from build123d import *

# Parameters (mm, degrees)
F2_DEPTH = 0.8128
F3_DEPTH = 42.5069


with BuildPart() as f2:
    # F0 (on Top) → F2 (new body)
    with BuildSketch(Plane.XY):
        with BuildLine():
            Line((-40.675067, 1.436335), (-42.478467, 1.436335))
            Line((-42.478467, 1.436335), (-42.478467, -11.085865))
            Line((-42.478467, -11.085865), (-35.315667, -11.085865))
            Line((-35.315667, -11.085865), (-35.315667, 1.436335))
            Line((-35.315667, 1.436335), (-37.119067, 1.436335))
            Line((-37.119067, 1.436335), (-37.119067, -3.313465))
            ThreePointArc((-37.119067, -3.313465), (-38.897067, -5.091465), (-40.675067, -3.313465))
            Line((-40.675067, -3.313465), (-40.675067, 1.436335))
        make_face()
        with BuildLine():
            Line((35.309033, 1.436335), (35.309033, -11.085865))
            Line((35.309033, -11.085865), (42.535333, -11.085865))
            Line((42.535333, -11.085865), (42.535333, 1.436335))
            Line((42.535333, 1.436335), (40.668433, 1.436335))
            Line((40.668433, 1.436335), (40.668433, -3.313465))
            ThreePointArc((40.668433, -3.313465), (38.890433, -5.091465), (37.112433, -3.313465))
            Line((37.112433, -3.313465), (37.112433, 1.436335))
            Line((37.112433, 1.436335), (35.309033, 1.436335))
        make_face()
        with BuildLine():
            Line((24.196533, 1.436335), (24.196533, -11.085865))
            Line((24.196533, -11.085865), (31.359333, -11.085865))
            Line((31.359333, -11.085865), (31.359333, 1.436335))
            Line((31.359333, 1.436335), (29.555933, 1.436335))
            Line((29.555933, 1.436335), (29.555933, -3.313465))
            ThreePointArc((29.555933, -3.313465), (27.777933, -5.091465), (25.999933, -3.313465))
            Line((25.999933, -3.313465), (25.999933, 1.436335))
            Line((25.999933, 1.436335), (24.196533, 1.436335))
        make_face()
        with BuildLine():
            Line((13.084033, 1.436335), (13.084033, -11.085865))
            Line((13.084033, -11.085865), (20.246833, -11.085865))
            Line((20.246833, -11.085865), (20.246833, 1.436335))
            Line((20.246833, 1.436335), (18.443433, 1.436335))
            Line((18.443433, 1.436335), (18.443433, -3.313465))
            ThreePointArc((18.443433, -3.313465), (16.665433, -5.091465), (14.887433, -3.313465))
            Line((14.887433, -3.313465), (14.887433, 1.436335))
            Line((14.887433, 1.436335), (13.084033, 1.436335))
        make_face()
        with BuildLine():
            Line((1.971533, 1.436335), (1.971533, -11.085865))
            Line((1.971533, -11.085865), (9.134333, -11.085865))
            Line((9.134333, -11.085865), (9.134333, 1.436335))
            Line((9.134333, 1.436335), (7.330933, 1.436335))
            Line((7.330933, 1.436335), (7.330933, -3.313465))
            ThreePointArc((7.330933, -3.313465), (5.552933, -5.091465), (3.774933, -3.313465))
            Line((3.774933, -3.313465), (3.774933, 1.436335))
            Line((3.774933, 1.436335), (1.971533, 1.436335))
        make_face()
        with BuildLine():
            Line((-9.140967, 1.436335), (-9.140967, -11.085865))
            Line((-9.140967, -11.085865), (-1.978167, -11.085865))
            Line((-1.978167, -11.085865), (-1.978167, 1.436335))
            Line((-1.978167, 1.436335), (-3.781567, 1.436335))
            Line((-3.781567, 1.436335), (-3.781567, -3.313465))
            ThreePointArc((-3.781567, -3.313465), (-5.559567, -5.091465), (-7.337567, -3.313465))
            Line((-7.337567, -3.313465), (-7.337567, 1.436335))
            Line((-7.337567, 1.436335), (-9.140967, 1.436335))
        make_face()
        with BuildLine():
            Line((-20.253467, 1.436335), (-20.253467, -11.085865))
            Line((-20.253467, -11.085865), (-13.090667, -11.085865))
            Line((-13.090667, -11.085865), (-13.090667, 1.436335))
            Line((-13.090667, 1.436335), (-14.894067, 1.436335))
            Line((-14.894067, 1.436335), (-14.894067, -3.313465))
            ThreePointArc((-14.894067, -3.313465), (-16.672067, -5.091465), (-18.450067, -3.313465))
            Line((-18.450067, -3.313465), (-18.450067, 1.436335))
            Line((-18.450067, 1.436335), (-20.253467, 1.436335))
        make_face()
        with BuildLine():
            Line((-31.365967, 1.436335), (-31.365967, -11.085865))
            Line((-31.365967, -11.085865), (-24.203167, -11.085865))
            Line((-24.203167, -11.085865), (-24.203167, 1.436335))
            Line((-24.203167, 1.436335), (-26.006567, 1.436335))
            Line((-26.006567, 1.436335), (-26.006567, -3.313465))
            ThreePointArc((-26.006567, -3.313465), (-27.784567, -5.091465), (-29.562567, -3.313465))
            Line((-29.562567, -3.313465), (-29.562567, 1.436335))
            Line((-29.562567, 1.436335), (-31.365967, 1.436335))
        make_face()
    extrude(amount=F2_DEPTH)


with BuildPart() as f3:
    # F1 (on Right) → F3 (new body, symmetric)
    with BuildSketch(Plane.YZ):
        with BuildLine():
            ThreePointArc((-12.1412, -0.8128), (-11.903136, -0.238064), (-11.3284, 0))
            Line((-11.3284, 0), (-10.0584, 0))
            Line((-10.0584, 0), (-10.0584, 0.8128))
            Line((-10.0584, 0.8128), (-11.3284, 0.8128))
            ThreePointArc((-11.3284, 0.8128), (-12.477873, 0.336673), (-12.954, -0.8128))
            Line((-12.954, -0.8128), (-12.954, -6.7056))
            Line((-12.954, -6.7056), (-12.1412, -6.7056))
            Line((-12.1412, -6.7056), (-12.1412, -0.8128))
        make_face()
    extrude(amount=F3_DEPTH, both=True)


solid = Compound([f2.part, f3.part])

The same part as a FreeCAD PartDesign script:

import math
import FreeCAD as App
import Part
import Sketcher

V = App.Vector
Q = App.Units.Quantity

doc = App.newDocument("Part")
params = doc.addObject("Spreadsheet::Sheet", "Params")
for row, (alias, value) in enumerate([
    ("sketch1_radius", "0.07 in"),
    ("sketch1_width", "0.071 in"),
    ("sketch1_height", "0.493 in"),
    ("sketch1_height2", "0.187 in"),
    ("pad1_length", "0.032 in"),
    ("sketch2_radius", "0.0320001 in"),
    ("sketch2_radius2", "0.064 in"),
    ("sketch2_width", "0.05 in"),
    ("sketch2_height", "0.232 in"),
    ("pad2_length", "3.347 in"),
], start=1):
    params.set(f"A{row}", alias)
    params.set(f"B{row}", "=" + value)
    params.setAlias(f"B{row}", alias)

body = doc.addObject("PartDesign::Body", "Body")
body.AllowCompound = True

sketch1 = doc.addObject("Sketcher::SketchObject", "Sketch")
body.addObject(sketch1)
sketch1.AttachmentSupport = (doc.XY_Plane, [""])
sketch1.MapMode = "FlatFace"
sketch1.addGeometry([
    Part.LineSegment(V(-40.7, 1.4, 0), V(-42.5, 1.4, 0)),
    Part.LineSegment(V(-42.5, 1.4, 0), V(-42.5, -11.1, 0)),
    Part.LineSegment(V(-42.5, -11.1, 0), V(-35.3, -11.1, 0)),
    Part.LineSegment(V(-35.3, -11.1, 0), V(-35.3, 1.4, 0)),
    Part.LineSegment(V(-35.3, 1.4, 0), V(-37.1, 1.4, 0)),
    Part.LineSegment(V(-37.1, 1.4, 0), V(-37.1, -3.3, 0)),
    Part.ArcOfCircle(Part.Circle(V(-38.9, -3.3, 0), V(0, 0, 1), 1.8), math.radians(180), math.radians(360)),
    Part.LineSegment(V(-40.7, -3.3, 0), V(-40.7, 1.4, 0)),
    Part.LineSegment(V(35.3, 1.4, 0), V(35.3, -11.1, 0)),
    Part.LineSegment(V(35.3, -11.1, 0), V(42.5, -11.1, 0)),
    Part.LineSegment(V(42.5, -11.1, 0), V(42.5, 1.4, 0)),
    Part.LineSegment(V(42.5, 1.4, 0), V(40.7, 1.4, 0)),
    Part.LineSegment(V(40.7, 1.4, 0), V(40.7, -3.3, 0)),
    Part.ArcOfCircle(Part.Circle(V(38.9, -3.3, 0), V(0, 0, 1), 1.8), math.radians(180), math.radians(360)),
    Part.LineSegment(V(37.1, -3.3, 0), V(37.1, 1.4, 0)),
    Part.LineSegment(V(37.1, 1.4, 0), V(35.3, 1.4, 0)),
    Part.LineSegment(V(24.2, 1.4, 0), V(24.2, -11.1, 0)),
    Part.LineSegment(V(24.2, -11.1, 0), V(31.4, -11.1, 0)),
    Part.LineSegment(V(31.4, -11.1, 0), V(31.4, 1.4, 0)),
    Part.LineSegment(V(31.4, 1.4, 0), V(29.6, 1.4, 0)),
    Part.LineSegment(V(29.6, 1.4, 0), V(29.6, -3.3, 0)),
    Part.ArcOfCircle(Part.Circle(V(27.8, -3.3, 0), V(0, 0, 1), 1.8), math.radians(180), math.radians(360)),
    Part.LineSegment(V(26, -3.3, 0), V(26, 1.4, 0)),
    Part.LineSegment(V(26, 1.4, 0), V(24.2, 1.4, 0)),
    Part.LineSegment(V(13.1, 1.4, 0), V(13.1, -11.1, 0)),
    Part.LineSegment(V(13.1, -11.1, 0), V(20.2, -11.1, 0)),
    Part.LineSegment(V(20.2, -11.1, 0), V(20.2, 1.4, 0)),
    Part.LineSegment(V(20.2, 1.4, 0), V(18.4, 1.4, 0)),
    Part.LineSegment(V(18.4, 1.4, 0), V(18.4, -3.3, 0)),
    Part.ArcOfCircle(Part.Circle(V(16.7, -3.3, 0), V(0, 0, 1), 1.8), math.radians(180), math.radians(360)),
    Part.LineSegment(V(14.9, -3.3, 0), V(14.9, 1.4, 0)),
    Part.LineSegment(V(14.9, 1.4, 0), V(13.1, 1.4, 0)),
    Part.LineSegment(V(2, 1.4, 0), V(2, -11.1, 0)),
    Part.LineSegment(V(2, -11.1, 0), V(9.1, -11.1, 0)),
    Part.LineSegment(V(9.1, -11.1, 0), V(9.1, 1.4, 0)),
    Part.LineSegment(V(9.1, 1.4, 0), V(7.3, 1.4, 0)),
    Part.LineSegment(V(7.3, 1.4, 0), V(7.3, -3.3, 0)),
    Part.ArcOfCircle(Part.Circle(V(5.6, -3.3, 0), V(0, 0, 1), 1.8), math.radians(180), math.radians(360)),
    Part.LineSegment(V(3.8, -3.3, 0), V(3.8, 1.4, 0)),
    Part.LineSegment(V(3.8, 1.4, 0), V(2, 1.4, 0)),
    Part.LineSegment(V(-9.1, 1.4, 0), V(-9.1, -11.1, 0)),
    Part.LineSegment(V(-9.1, -11.1, 0), V(-2, -11.1, 0)),
    Part.LineSegment(V(-2, -11.1, 0), V(-2, 1.4, 0)),
    Part.LineSegment(V(-2, 1.4, 0), V(-3.8, 1.4, 0)),
    Part.LineSegment(V(-3.8, 1.4, 0), V(-3.8, -3.3, 0)),
    Part.ArcOfCircle(Part.Circle(V(-5.6, -3.3, 0), V(0, 0, 1), 1.8), math.radians(180), math.radians(360)),
    Part.LineSegment(V(-7.3, -3.3, 0), V(-7.3, 1.4, 0)),
    Part.LineSegment(V(-7.3, 1.4, 0), V(-9.1, 1.4, 0)),
    Part.LineSegment(V(-20.3, 1.4, 0), V(-20.3, -11.1, 0)),
    Part.LineSegment(V(-20.3, -11.1, 0), V(-13.1, -11.1, 0)),
    Part.LineSegment(V(-13.1, -11.1, 0), V(-13.1, 1.4, 0)),
    Part.LineSegment(V(-13.1, 1.4, 0), V(-14.9, 1.4, 0)),
    Part.LineSegment(V(-14.9, 1.4, 0), V(-14.9, -3.3, 0)),
    Part.ArcOfCircle(Part.Circle(V(-16.7, -3.3, 0), V(0, 0, 1), 1.8), math.radians(180), math.radians(360)),
    Part.LineSegment(V(-18.5, -3.3, 0), V(-18.5, 1.4, 0)),
    Part.LineSegment(V(-18.5, 1.4, 0), V(-20.3, 1.4, 0)),
    Part.LineSegment(V(-31.4, 1.4, 0), V(-31.4, -11.1, 0)),
    Part.LineSegment(V(-31.4, -11.1, 0), V(-24.2, -11.1, 0)),
    Part.LineSegment(V(-24.2, -11.1, 0), V(-24.2, 1.4, 0)),
    Part.LineSegment(V(-24.2, 1.4, 0), V(-26, 1.4, 0)),
    Part.LineSegment(V(-26, 1.4, 0), V(-26, -3.3, 0)),
    Part.ArcOfCircle(Part.Circle(V(-27.8, -3.3, 0), V(0, 0, 1), 1.8), math.radians(180), math.radians(360)),
    Part.LineSegment(V(-29.6, -3.3, 0), V(-29.6, 1.4, 0)),
    Part.LineSegment(V(-29.6, 1.4, 0), V(-31.4, 1.4, 0)),
], False)
sketch1.addConstraint([
    Sketcher.Constraint("Coincident", 0, 2, 1, 1),
    Sketcher.Constraint("Coincident", 1, 2, 2, 1),
    Sketcher.Constraint("Coincident", 2, 2, 3, 1),
    Sketcher.Constraint("Coincident", 3, 2, 4, 1),
    Sketcher.Constraint("Coincident", 4, 2, 5, 1),
    Sketcher.Constraint("Tangent", 5, 2, 6, 2),
    Sketcher.Constraint("Tangent", 6, 1, 7, 1),
    Sketcher.Constraint("Coincident", 7, 2, 0, 1),
    Sketcher.Constraint("Coincident", 8, 2, 9, 1),
    Sketcher.Constraint("Coincident", 9, 2, 10, 1),
    Sketcher.Constraint("Coincident", 10, 2, 11, 1),
    Sketcher.Constraint("Coincident", 11, 2, 12, 1),
    Sketcher.Constraint("Tangent", 12, 2, 13, 2),
    Sketcher.Constraint("Tangent", 13, 1, 14, 1),
    Sketcher.Constraint("Coincident", 14, 2, 15, 1),
    Sketcher.Constraint("Coincident", 15, 2, 8, 1),
    Sketcher.Constraint("Coincident", 16, 2, 17, 1),
    Sketcher.Constraint("Coincident", 17, 2, 18, 1),
    Sketcher.Constraint("Coincident", 18, 2, 19, 1),
    Sketcher.Constraint("Coincident", 19, 2, 20, 1),
    Sketcher.Constraint("Tangent", 20, 2, 21, 2),
    Sketcher.Constraint("Tangent", 21, 1, 22, 1),
    Sketcher.Constraint("Coincident", 22, 2, 23, 1),
    Sketcher.Constraint("Coincident", 23, 2, 16, 1),
    Sketcher.Constraint("Coincident", 24, 2, 25, 1),
    Sketcher.Constraint("Coincident", 25, 2, 26, 1),
    Sketcher.Constraint("Coincident", 26, 2, 27, 1),
    Sketcher.Constraint("Coincident", 27, 2, 28, 1),
    Sketcher.Constraint("Tangent", 28, 2, 29, 2),
    Sketcher.Constraint("Tangent", 29, 1, 30, 1),
    Sketcher.Constraint("Coincident", 30, 2, 31, 1),
    Sketcher.Constraint("Coincident", 31, 2, 24, 1),
    Sketcher.Constraint("Coincident", 32, 2, 33, 1),
    Sketcher.Constraint("Coincident", 33, 2, 34, 1),
    Sketcher.Constraint("Coincident", 34, 2, 35, 1),
    Sketcher.Constraint("Coincident", 35, 2, 36, 1),
    Sketcher.Constraint("Tangent", 36, 2, 37, 2),
    Sketcher.Constraint("Tangent", 37, 1, 38, 1),
    Sketcher.Constraint("Coincident", 38, 2, 39, 1),
    Sketcher.Constraint("Coincident", 39, 2, 32, 1),
    Sketcher.Constraint("Coincident", 40, 2, 41, 1),
    Sketcher.Constraint("Coincident", 41, 2, 42, 1),
    Sketcher.Constraint("Coincident", 42, 2, 43, 1),
    Sketcher.Constraint("Coincident", 43, 2, 44, 1),
    Sketcher.Constraint("Tangent", 44, 2, 45, 2),
    Sketcher.Constraint("Tangent", 45, 1, 46, 1),
    Sketcher.Constraint("Coincident", 46, 2, 47, 1),
    Sketcher.Constraint("Coincident", 47, 2, 40, 1),
    Sketcher.Constraint("Coincident", 48, 2, 49, 1),
    Sketcher.Constraint("Coincident", 49, 2, 50, 1),
    Sketcher.Constraint("Coincident", 50, 2, 51, 1),
    Sketcher.Constraint("Coincident", 51, 2, 52, 1),
    Sketcher.Constraint("Tangent", 52, 2, 53, 2),
    Sketcher.Constraint("Tangent", 53, 1, 54, 1),
    Sketcher.Constraint("Coincident", 54, 2, 55, 1),
    Sketcher.Constraint("Coincident", 55, 2, 48, 1),
    Sketcher.Constraint("Coincident", 56, 2, 57, 1),
    Sketcher.Constraint("Coincident", 57, 2, 58, 1),
    Sketcher.Constraint("Coincident", 58, 2, 59, 1),
    Sketcher.Constraint("Coincident", 59, 2, 60, 1),
    Sketcher.Constraint("Tangent", 60, 2, 61, 2),
    Sketcher.Constraint("Tangent", 61, 1, 62, 1),
    Sketcher.Constraint("Coincident", 62, 2, 63, 1),
    Sketcher.Constraint("Coincident", 63, 2, 56, 1),
    Sketcher.Constraint("Horizontal", 0),
    Sketcher.Constraint("Vertical", 1),
    Sketcher.Constraint("Horizontal", 2),
    Sketcher.Constraint("Vertical", 3),
    Sketcher.Constraint("Horizontal", 4),
    Sketcher.Constraint("Vertical", 5),
    Sketcher.Constraint("Vertical", 7),
    Sketcher.Constraint("Vertical", 8),
    Sketcher.Constraint("Horizontal", 9),
    Sketcher.Constraint("Vertical", 10),
    Sketcher.Constraint("Horizontal", 11),
    Sketcher.Constraint("Vertical", 12),
    Sketcher.Constraint("Vertical", 14),
    Sketcher.Constraint("Horizontal", 15),
    Sketcher.Constraint("Vertical", 16),
    Sketcher.Constraint("Horizontal", 17),
    Sketcher.Constraint("Vertical", 18),
    Sketcher.Constraint("Horizontal", 19),
    Sketcher.Constraint("Vertical", 20),
    Sketcher.Constraint("Vertical", 22),
    Sketcher.Constraint("Horizontal", 23),
    Sketcher.Constraint("Vertical", 24),
    Sketcher.Constraint("Horizontal", 25),
    Sketcher.Constraint("Vertical", 26),
    Sketcher.Constraint("Horizontal", 27),
    Sketcher.Constraint("Vertical", 28),
    Sketcher.Constraint("Vertical", 30),
    Sketcher.Constraint("Horizontal", 31),
    Sketcher.Constraint("Vertical", 32),
    Sketcher.Constraint("Horizontal", 33),
    Sketcher.Constraint("Vertical", 34),
    Sketcher.Constraint("Horizontal", 35),
    Sketcher.Constraint("Vertical", 36),
    Sketcher.Constraint("Vertical", 38),
    Sketcher.Constraint("Horizontal", 39),
    Sketcher.Constraint("Vertical", 40),
    Sketcher.Constraint("Horizontal", 41),
    Sketcher.Constraint("Vertical", 42),
    Sketcher.Constraint("Horizontal", 43),
    Sketcher.Constraint("Vertical", 44),
    Sketcher.Constraint("Vertical", 46),
    Sketcher.Constraint("Horizontal", 47),
    Sketcher.Constraint("Vertical", 48),
    Sketcher.Constraint("Horizontal", 49),
    Sketcher.Constraint("Vertical", 50),
    Sketcher.Constraint("Horizontal", 51),
    Sketcher.Constraint("Vertical", 52),
    Sketcher.Constraint("Vertical", 54),
    Sketcher.Constraint("Horizontal", 55),
    Sketcher.Constraint("Vertical", 56),
    Sketcher.Constraint("Horizontal", 57),
    Sketcher.Constraint("Vertical", 58),
    Sketcher.Constraint("Horizontal", 59),
    Sketcher.Constraint("Vertical", 60),
    Sketcher.Constraint("Vertical", 62),
    Sketcher.Constraint("Horizontal", 63),
    Sketcher.Constraint("Equal", 6, 13),
    Sketcher.Constraint("Equal", 13, 21),
    Sketcher.Constraint("Equal", 21, 29),
    Sketcher.Constraint("Equal", 29, 37),
    Sketcher.Constraint("Equal", 37, 45),
    Sketcher.Constraint("Equal", 45, 53),
    Sketcher.Constraint("Equal", 53, 61),
    Sketcher.Constraint("Horizontal", 6, 3, 13, 3),
    Sketcher.Constraint("Horizontal", 13, 3, 21, 3),
    Sketcher.Constraint("Horizontal", 21, 3, 29, 3),
    Sketcher.Constraint("Horizontal", 29, 3, 37, 3),
    Sketcher.Constraint("Horizontal", 37, 3, 45, 3),
    Sketcher.Constraint("Horizontal", 45, 3, 53, 3),
    Sketcher.Constraint("Horizontal", 53, 3, 61, 3),
    Sketcher.Constraint("Horizontal", 0, 2, 3, 2),
    Sketcher.Constraint("Horizontal", 2, 2, 8, 2),
    Sketcher.Constraint("Horizontal", 7, 2, 10, 2),
    Sketcher.Constraint("Horizontal", 11, 2, 14, 2),
    Sketcher.Constraint("Horizontal", 9, 2, 16, 2),
    Sketcher.Constraint("Horizontal", 15, 2, 18, 2),
    Sketcher.Constraint("Horizontal", 19, 2, 22, 2),
    Sketcher.Constraint("Horizontal", 17, 2, 24, 2),
    Sketcher.Constraint("Horizontal", 23, 2, 26, 2),
    Sketcher.Constraint("Horizontal", 27, 2, 30, 2),
    Sketcher.Constraint("Horizontal", 25, 2, 32, 2),
    Sketcher.Constraint("Horizontal", 31, 2, 34, 2),
    Sketcher.Constraint("Horizontal", 35, 2, 38, 2),
    Sketcher.Constraint("Horizontal", 33, 2, 40, 2),
    Sketcher.Constraint("Horizontal", 39, 2, 42, 2),
    Sketcher.Constraint("Horizontal", 43, 2, 46, 2),
    Sketcher.Constraint("Horizontal", 41, 2, 48, 2),
    Sketcher.Constraint("Horizontal", 47, 2, 50, 2),
    Sketcher.Constraint("Horizontal", 51, 2, 54, 2),
    Sketcher.Constraint("Horizontal", 49, 2, 56, 2),
    Sketcher.Constraint("Horizontal", 55, 2, 58, 2),
    Sketcher.Constraint("Horizontal", 59, 2, 62, 2),
    Sketcher.Constraint("Equal", 0, 4),
    Sketcher.Constraint("Equal", 4, 15),
    Sketcher.Constraint("Equal", 2, 17),
    Sketcher.Constraint("Equal", 15, 19),
    Sketcher.Constraint("Equal", 17, 25),
    Sketcher.Constraint("Equal", 23, 27),
    Sketcher.Constraint("Equal", 25, 33),
    Sketcher.Constraint("Equal", 31, 35),
    Sketcher.Constraint("Equal", 33, 41),
    Sketcher.Constraint("Equal", 39, 43),
    Sketcher.Constraint("Equal", 41, 49),
    Sketcher.Constraint("Equal", 47, 51),
    Sketcher.Constraint("Equal", 49, 57),
    Sketcher.Constraint("Equal", 55, 59),
    Sketcher.Constraint("Radius", 6, Q("0.07 in")),
    Sketcher.Constraint("DistanceX", 0, 2, 0, 1, Q("0.071 in")),
    Sketcher.Constraint("DistanceY", 1, 2, 1, 1, Q("0.493 in")),
    Sketcher.Constraint("DistanceY", 5, 2, 5, 1, Q("0.187 in")),
    Sketcher.Constraint("DistanceX", 9, 1, 9, 2, Q("0.2845 in")),
    Sketcher.Constraint("DistanceX", 6, 3, -1, 1, Q("38.897067 mm")),
    Sketcher.Constraint("DistanceY", 6, 3, -1, 1, Q("3.313465 mm")),
    Sketcher.Constraint("DistanceX", -1, 1, 13, 3, Q("38.890433 mm")),
    Sketcher.Constraint("DistanceX", -1, 1, 21, 3, Q("27.777933 mm")),
    Sketcher.Constraint("DistanceX", -1, 1, 29, 3, Q("16.665433 mm")),
    Sketcher.Constraint("DistanceX", -1, 1, 37, 3, Q("5.552933 mm")),
    Sketcher.Constraint("DistanceX", 45, 3, -1, 1, Q("5.559567 mm")),
    Sketcher.Constraint("DistanceX", 53, 3, -1, 1, Q("16.672067 mm")),
    Sketcher.Constraint("DistanceX", 61, 3, -1, 1, Q("27.784567 mm")),
])
sketch1.setExpression("Constraints[170]", "Params.sketch1_radius")
sketch1.setExpression("Constraints[171]", "Params.sketch1_width")
sketch1.setExpression("Constraints[172]", "Params.sketch1_height")
sketch1.setExpression("Constraints[173]", "Params.sketch1_height2")
pad1 = doc.addObject("PartDesign::Pad", "Pad")
body.addObject(pad1)
pad1.Profile = sketch1
pad1.setExpression("Length", "Params.pad1_length")
body2 = doc.addObject("PartDesign::Body", "Body001")

sketch2 = doc.addObject("Sketcher::SketchObject", "Sketch001")
body2.addObject(sketch2)
sketch2.AttachmentSupport = (doc.getObject("YZ_Plane001"), [""])
sketch2.MapMode = "FlatFace"
sketch2.addGeometry([
    Part.ArcOfCircle(Part.Circle(V(-11.3, -0.8, 0), V(0, 0, 1), 0.8), math.radians(90), math.radians(180)),
    Part.LineSegment(V(-11.3, 0, 0), V(-10.1, 0, 0)),
    Part.LineSegment(V(-10.1, 0, 0), V(-10.1, 0.8, 0)),
    Part.LineSegment(V(-10.1, 0.8, 0), V(-11.3, 0.8, 0)),
    Part.ArcOfCircle(Part.Circle(V(-11.3, -0.8, 0), V(0, 0, 1), 1.6), math.radians(90), math.radians(180)),
    Part.LineSegment(V(-13, -0.8, 0), V(-13, -6.7, 0)),
    Part.LineSegment(V(-13, -6.7, 0), V(-12.1, -6.7, 0)),
    Part.LineSegment(V(-12.1, -6.7, 0), V(-12.1, -0.8, 0)),
], False)
sketch2.addConstraint([
    Sketcher.Constraint("Tangent", 0, 1, 1, 1),
    Sketcher.Constraint("Coincident", 1, 2, 2, 1),
    Sketcher.Constraint("Coincident", 2, 2, 3, 1),
    Sketcher.Constraint("Tangent", 3, 2, 4, 1),
    Sketcher.Constraint("Tangent", 4, 2, 5, 1),
    Sketcher.Constraint("Coincident", 5, 2, 6, 1),
    Sketcher.Constraint("Coincident", 6, 2, 7, 1),
    Sketcher.Constraint("Tangent", 7, 2, 0, 2),
    Sketcher.Constraint("Horizontal", 1),
    Sketcher.Constraint("Vertical", 2),
    Sketcher.Constraint("Horizontal", 3),
    Sketcher.Constraint("Vertical", 5),
    Sketcher.Constraint("Horizontal", 6),
    Sketcher.Constraint("Vertical", 7),
    Sketcher.Constraint("Coincident", 4, 3, 0, 3),
    Sketcher.Constraint("PointOnObject", 0, 1, -1),
    Sketcher.Constraint("Radius", 0, Q("0.0320001 in")),
    Sketcher.Constraint("Radius", 4, Q("0.064 in")),
    Sketcher.Constraint("DistanceX", 1, 1, 1, 2, Q("0.05 in")),
    Sketcher.Constraint("DistanceY", 5, 2, 5, 1, Q("0.232 in")),
    Sketcher.Constraint("DistanceX", 4, 2, -1, 1, Q("0.51 in")),
])
sketch2.setExpression("Constraints[16]", "Params.sketch2_radius")
sketch2.setExpression("Constraints[17]", "Params.sketch2_radius2")
sketch2.setExpression("Constraints[18]", "Params.sketch2_width")
sketch2.setExpression("Constraints[19]", "Params.sketch2_height")
pad2 = doc.addObject("PartDesign::Pad", "Pad001")
body2.addObject(pad2)
pad2.Profile = sketch2
pad2.setExpression("Length", "Params.pad2_length")
pad2.Midplane = True

doc.recompute()
